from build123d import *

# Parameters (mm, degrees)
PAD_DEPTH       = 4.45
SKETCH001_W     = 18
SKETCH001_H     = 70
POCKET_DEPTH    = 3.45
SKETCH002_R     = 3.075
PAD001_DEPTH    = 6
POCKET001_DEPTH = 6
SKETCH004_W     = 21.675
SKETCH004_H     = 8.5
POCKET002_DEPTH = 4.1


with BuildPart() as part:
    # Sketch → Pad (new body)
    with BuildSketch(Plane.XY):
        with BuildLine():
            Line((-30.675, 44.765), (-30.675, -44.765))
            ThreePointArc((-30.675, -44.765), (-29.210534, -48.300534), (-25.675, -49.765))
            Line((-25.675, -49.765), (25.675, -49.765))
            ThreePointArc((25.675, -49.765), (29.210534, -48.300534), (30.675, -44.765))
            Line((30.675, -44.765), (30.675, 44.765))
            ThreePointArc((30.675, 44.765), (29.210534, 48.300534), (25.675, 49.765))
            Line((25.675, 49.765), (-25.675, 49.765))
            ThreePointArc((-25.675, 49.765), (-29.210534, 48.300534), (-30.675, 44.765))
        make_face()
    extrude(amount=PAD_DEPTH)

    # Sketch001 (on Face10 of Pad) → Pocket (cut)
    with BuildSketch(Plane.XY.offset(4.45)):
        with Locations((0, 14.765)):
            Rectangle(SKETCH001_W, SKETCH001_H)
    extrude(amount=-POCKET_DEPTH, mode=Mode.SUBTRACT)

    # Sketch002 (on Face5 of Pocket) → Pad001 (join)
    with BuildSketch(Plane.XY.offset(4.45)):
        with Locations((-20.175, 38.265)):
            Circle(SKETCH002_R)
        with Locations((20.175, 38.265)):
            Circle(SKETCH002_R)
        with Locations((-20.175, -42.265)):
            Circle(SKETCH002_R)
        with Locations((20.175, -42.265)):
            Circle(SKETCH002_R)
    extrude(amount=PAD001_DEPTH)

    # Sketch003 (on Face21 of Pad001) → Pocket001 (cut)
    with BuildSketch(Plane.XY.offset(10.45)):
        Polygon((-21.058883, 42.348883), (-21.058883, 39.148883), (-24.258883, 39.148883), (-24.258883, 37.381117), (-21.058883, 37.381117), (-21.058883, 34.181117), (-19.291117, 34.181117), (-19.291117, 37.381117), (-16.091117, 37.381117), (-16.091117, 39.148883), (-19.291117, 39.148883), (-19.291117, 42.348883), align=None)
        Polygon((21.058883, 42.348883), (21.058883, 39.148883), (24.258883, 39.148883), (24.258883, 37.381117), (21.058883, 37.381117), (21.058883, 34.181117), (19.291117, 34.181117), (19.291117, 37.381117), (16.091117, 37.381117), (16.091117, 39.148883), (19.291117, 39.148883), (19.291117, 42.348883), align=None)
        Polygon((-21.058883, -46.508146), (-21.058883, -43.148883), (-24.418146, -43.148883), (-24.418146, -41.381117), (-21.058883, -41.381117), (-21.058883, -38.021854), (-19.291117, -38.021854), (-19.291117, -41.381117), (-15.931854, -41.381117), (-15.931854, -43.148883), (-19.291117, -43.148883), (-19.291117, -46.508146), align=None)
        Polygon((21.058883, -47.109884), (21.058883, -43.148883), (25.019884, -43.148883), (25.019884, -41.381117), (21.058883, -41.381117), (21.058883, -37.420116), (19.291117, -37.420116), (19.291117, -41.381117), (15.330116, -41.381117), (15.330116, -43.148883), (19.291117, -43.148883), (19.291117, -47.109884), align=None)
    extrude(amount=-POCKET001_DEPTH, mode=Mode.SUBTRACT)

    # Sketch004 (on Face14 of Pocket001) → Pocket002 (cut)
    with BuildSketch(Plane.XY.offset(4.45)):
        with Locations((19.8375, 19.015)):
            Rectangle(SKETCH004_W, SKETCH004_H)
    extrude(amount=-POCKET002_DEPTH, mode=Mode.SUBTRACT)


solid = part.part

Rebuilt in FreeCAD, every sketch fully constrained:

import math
import FreeCAD as App
import Part
import Sketcher
Q = App.Units.Quantity

doc = App.newDocument("Part")
body = doc.addObject("PartDesign::Body", "Body")

# Sketch on XY plane
sketch1 = body.newObject("Sketcher::SketchObject", "Sketch")
sketch1.AttachmentSupport = (doc.getObject("XY_Plane"), [""])
sketch1.MapMode = "FlatFace"
sketch1.addGeometry([
    Part.LineSegment(App.Vector(-30.7, 44.8, 0), App.Vector(-30.7, -44.8, 0)),  # 0
    Part.ArcOfCircle(Part.Circle(App.Vector(-25.7, -44.8, 0), App.Vector(0, 0, 1), 5), math.radians(180), math.radians(270)),  # 1
    Part.LineSegment(App.Vector(-25.7, -49.8, 0), App.Vector(25.7, -49.8, 0)),  # 2
    Part.ArcOfCircle(Part.Circle(App.Vector(25.7, -44.8, 0), App.Vector(0, 0, 1), 5), math.radians(-90), math.radians(0)),  # 3
    Part.LineSegment(App.Vector(30.7, -44.8, 0), App.Vector(30.7, 44.8, 0)),  # 4
    Part.ArcOfCircle(Part.Circle(App.Vector(25.7, 44.8, 0), App.Vector(0, 0, 1), 5), math.radians(0), math.radians(90)),  # 5
    Part.LineSegment(App.Vector(25.7, 49.8, 0), App.Vector(-25.7, 49.8, 0)),  # 6
    Part.ArcOfCircle(Part.Circle(App.Vector(-25.7, 44.8, 0), App.Vector(0, 0, 1), 5), math.radians(90), math.radians(180)),  # 7
], False)
sketch1.addConstraint([
    Sketcher.Constraint("Tangent", 0, 2, 1, 1),
    Sketcher.Constraint("Tangent", 1, 2, 2, 1),
    Sketcher.Constraint("Tangent", 2, 2, 3, 1),
    Sketcher.Constraint("Tangent", 3, 2, 4, 1),
    Sketcher.Constraint("Tangent", 4, 2, 5, 1),
    Sketcher.Constraint("Tangent", 5, 2, 6, 1),
    Sketcher.Constraint("Tangent", 6, 2, 7, 1),
    Sketcher.Constraint("Tangent", 7, 2, 0, 1),
    Sketcher.Constraint("Vertical", 0),
    Sketcher.Constraint("Horizontal", 2),
    Sketcher.Constraint("Vertical", 4),
    Sketcher.Constraint("Horizontal", 6),
    Sketcher.Constraint("Equal", 1, 3),
    Sketcher.Constraint("Equal", 3, 5),
    Sketcher.Constraint("Equal", 5, 7),
    Sketcher.Constraint("Symmetric", 1, 3, 5, 3, -1, 1),
    Sketcher.Constraint("Radius", 1, Q("5 mm")),
    Sketcher.Constraint("DistanceX", 2, 1, 2, 2, Q("51.35 mm")),
    Sketcher.Constraint("DistanceY", 0, 2, 0, 1, Q("89.53 mm")),
])
pad1 = body.newObject("PartDesign::Pad", "Pad")
pad1.Profile = sketch1
pad1.Length = 4.45

# Sketch on XY plane
sketch2 = body.newObject("Sketcher::SketchObject", "Sketch001")
sketch2.AttachmentSupport = (doc.getObject("XY_Plane"), [""])
sketch2.MapMode = "FlatFace"
sketch2.AttachmentOffset = App.Placement(App.Vector(0, 0, 4.45), App.Rotation())
sketch2.addGeometry([
    Part.LineSegment(App.Vector(-9, 50, 0), App.Vector(-9, -20, 0)),
    Part.LineSegment(App.Vector(-9, -20, 0), App.Vector(9, -20, 0)),
    Part.LineSegment(App.Vector(9, -20, 0), App.Vector(9, 50, 0)),
    Part.LineSegment(App.Vector(9, 50, 0), App.Vector(-9, 50, 0)),
], False)
sketch2.addConstraint([
    Sketcher.Constraint("Coincident", 0, 2, 1, 1),
    Sketcher.Constraint("Coincident", 1, 2, 2, 1),
    Sketcher.Constraint("Coincident", 2, 2, 3, 1),
    Sketcher.Constraint("Coincident", 3, 2, 0, 1),
    Sketcher.Constraint("Vertical", 0),
    Sketcher.Constraint("Horizontal", 1),
    Sketcher.Constraint("Vertical", 2),
    Sketcher.Constraint("Horizontal", 3),
    Sketcher.Constraint("DistanceX", 1, 1, 1, 2, Q("18 mm")),
    Sketcher.Constraint("DistanceY", 0, 2, 0, 1, Q("70 mm")),
    Sketcher.Constraint("DistanceX", 0, 2, -1, 1, Q("9 mm")),
    Sketcher.Constraint("DistanceY", 0, 2, -1, 1, Q("20.235 mm")),
])
pocket1 = body.newObject("PartDesign::Pocket", "Pocket")
pocket1.Profile = sketch2
pocket1.Length = 3.45

# Sketch on XY plane
sketch3 = body.newObject("Sketcher::SketchObject", "Sketch002")
sketch3.AttachmentSupport = (doc.getObject("XY_Plane"), [""])
sketch3.MapMode = "FlatFace"
sketch3.AttachmentOffset = App.Placement(App.Vector(0, 0, 4.45), App.Rotation())
sketch3.addGeometry([
    Part.Circle(App.Vector(-20.2, 38.3, 0), App.Vector(0, 0, 1), 3.1),
    Part.Circle(App.Vector(20.2, 38.3, 0), App.Vector(0, 0, 1), 3.1),
    Part.Circle(App.Vector(-20.2, -42.3, 0), App.Vector(0, 0, 1), 3.1),
    Part.Circle(App.Vector(20.2, -42.3, 0), App.Vector(0, 0, 1), 3.1),
], False)
sketch3.addConstraint([
    Sketcher.Constraint("Equal", 0, 1),
    Sketcher.Constraint("Equal", 1, 2),
    Sketcher.Constraint("Equal", 2, 3),
    Sketcher.Constraint("Symmetric", 0, 3, 1, 3, -2),
    Sketcher.Constraint("Symmetric", 2, 3, 3, 3, -2),
    Sketcher.Constraint("Vertical", 0, 3, 2, 3),
    Sketcher.Constraint("Diameter", 0, Q("6.15 mm")),
    Sketcher.Constraint("DistanceX", 0, 3, 1, 3, Q("40.35 mm")),
    Sketcher.Constraint("DistanceY", 2, 3, 0, 3, Q("80.53 mm")),
    Sketcher.Constraint("DistanceY", -1, 1, 0, 3, Q("38.265 mm")),
])
pad2 = body.newObject("PartDesign::Pad", "Pad001")
pad2.Profile = sketch3
pad2.Length = 6

# Sketch on XY plane
sketch4 = body.newObject("Sketcher::SketchObject", "Sketch003")
sketch4.AttachmentSupport = (doc.getObject("XY_Plane"), [""])
sketch4.MapMode = "FlatFace"
sketch4.AttachmentOffset = App.Placement(App.Vector(0, 0, 10.45), App.Rotation())
sketch4.addGeometry([
    Part.LineSegment(App.Vector(-21.1, 42.3, 0), App.Vector(-21.1, 39.1, 0)),  # 0
    Part.LineSegment(App.Vector(-21.1, 39.1, 0), App.Vector(-24.3, 39.1, 0)),  # 1
    Part.LineSegment(App.Vector(-24.3, 39.1, 0), App.Vector(-24.3, 37.4, 0)),  # 2
    Part.LineSegment(App.Vector(-24.3, 37.4, 0), App.Vector(-21.1, 37.4, 0)),  # 3
    Part.LineSegment(App.Vector(-21.1, 37.4, 0), App.Vector(-21.1, 34.2, 0)),  # 4
    Part.LineSegment(App.Vector(-21.1, 34.2, 0), App.Vector(-19.3, 34.2, 0)),  # 5
    Part.LineSegment(App.Vector(-19.3, 34.2, 0), App.Vector(-19.3, 37.4, 0)),  # 6
    Part.LineSegment(App.Vector(-19.3, 37.4, 0), App.Vector(-16.1, 37.4, 0)),  # 7
    Part.LineSegment(App.Vector(-16.1, 37.4, 0), App.Vector(-16.1, 39.1, 0)),  # 8
    Part.LineSegment(App.Vector(-16.1, 39.1, 0), App.Vector(-19.3, 39.1, 0)),  # 9
    Part.LineSegment(App.Vector(-19.3, 39.1, 0), App.Vector(-19.3, 42.3, 0)),  # 10
    Part.LineSegment(App.Vector(-19.3, 42.3, 0), App.Vector(-21.1, 42.3, 0)),  # 11
    Part.LineSegment(App.Vector(21.1, 39.1, 0), App.Vector(21.1, 42.3, 0)),  # 12
    Part.LineSegment(App.Vector(21.1, 42.3, 0), App.Vector(19.3, 42.3, 0)),  # 13
    Part.LineSegment(App.Vector(19.3, 42.3, 0), App.Vector(19.3, 39.1, 0)),  # 14
    Part.LineSegment(App.Vector(19.3, 39.1, 0), App.Vector(16.1, 39.1, 0)),  # 15
    Part.LineSegment(App.Vector(16.1, 39.1, 0), App.Vector(16.1, 37.4, 0)),  # 16
    Part.LineSegment(App.Vector(16.1, 37.4, 0), App.Vector(19.3, 37.4, 0)),  # 17
    Part.LineSegment(App.Vector(19.3, 37.4, 0), App.Vector(19.3, 34.2, 0)),  # 18
    Part.LineSegment(App.Vector(19.3, 34.2, 0), App.Vector(21.1, 34.2, 0)),  # 19
    Part.LineSegment(App.Vector(21.1, 34.2, 0), App.Vector(21.1, 37.4, 0)),  # 20
    Part.LineSegment(App.Vector(21.1, 37.4, 0), App.Vector(24.3, 37.4, 0)),  # 21
    Part.LineSegment(App.Vector(24.3, 37.4, 0), App.Vector(24.3, 39.1, 0)),  # 22
    Part.LineSegment(App.Vector(24.3, 39.1, 0), App.Vector(21.1, 39.1, 0)),  # 23
    Part.LineSegment(App.Vector(-21.1, -43.1, 0), App.Vector(-21.1, -46.5, 0)),  # 24
    Part.LineSegment(App.Vector(-21.1, -46.5, 0), App.Vector(-19.3, -46.5, 0)),  # 25
    Part.LineSegment(App.Vector(-19.3, -46.5, 0), App.Vector(-19.3, -43.1, 0)),  # 26
    Part.LineSegment(App.Vector(-19.3, -43.1, 0), App.Vector(-15.9, -43.1, 0)),  # 27
    Part.LineSegment(App.Vector(-15.9, -43.1, 0), App.Vector(-15.9, -41.4, 0)),  # 28
    Part.LineSegment(App.Vector(-15.9, -41.4, 0), App.Vector(-19.3, -41.4, 0)),  # 29
    Part.LineSegment(App.Vector(-19.3, -41.4, 0), App.Vector(-19.3, -38, 0)),  # 30
    Part.LineSegment(App.Vector(-19.3, -38, 0), App.Vector(-21.1, -38, 0)),  # 31
    Part.LineSegment(App.Vector(-21.1, -38, 0), App.Vector(-21.1, -41.4, 0)),  # 32
    Part.LineSegment(App.Vector(-21.1, -41.4, 0), App.Vector(-24.4, -41.4, 0)),  # 33
    Part.LineSegment(App.Vector(-24.4, -41.4, 0), App.Vector(-24.4, -43.1, 0)),  # 34
    Part.LineSegment(App.Vector(-24.4, -43.1, 0), App.Vector(-21.1, -43.1, 0)),  # 35
    Part.LineSegment(App.Vector(21.1, -47.1, 0), App.Vector(21.1, -43.1, 0)),  # 36
    Part.LineSegment(App.Vector(21.1, -43.1, 0), App.Vector(25, -43.1, 0)),  # 37
    Part.LineSegment(App.Vector(25, -43.1, 0), App.Vector(25, -41.4, 0)),  # 38
    Part.LineSegment(App.Vector(25, -41.4, 0), App.Vector(21.1, -41.4, 0)),  # 39
    Part.LineSegment(App.Vector(21.1, -41.4, 0), App.Vector(21.1, -37.4, 0)),  # 40
    Part.LineSegment(App.Vector(21.1, -37.4, 0), App.Vector(19.3, -37.4, 0)),  # 41
    Part.LineSegment(App.Vector(19.3, -37.4, 0), App.Vector(19.3, -41.4, 0)),  # 42
    Part.LineSegment(App.Vector(19.3, -41.4, 0), App.Vector(15.3, -41.4, 0)),  # 43
    Part.LineSegment(App.Vector(15.3, -41.4, 0), App.Vector(15.3, -43.1, 0)),  # 44
    Part.LineSegment(App.Vector(15.3, -43.1, 0), App.Vector(19.3, -43.1, 0)),  # 45
    Part.LineSegment(App.Vector(19.3, -43.1, 0), App.Vector(19.3, -47.1, 0)),  # 46
    Part.LineSegment(App.Vector(19.3, -47.1, 0), App.Vector(21.1, -47.1, 0)),  # 47
], False)
sketch4.addConstraint([
    Sketcher.Constraint("Coincident", 0, 2, 1, 1),
    Sketcher.Constraint("Coincident", 1, 2, 2, 1),
    Sketcher.Constraint("Coincident", 2, 2, 3, 1),
    Sketcher.Constraint("Coincident", 3, 2, 4, 1),
    Sketcher.Constraint("Coincident", 4, 2, 5, 1),
    Sketcher.Constraint("Coincident", 5, 2, 6, 1),
    Sketcher.Constraint("Coincident", 6, 2, 7, 1),
    Sketcher.Constraint("Coincident", 7, 2, 8, 1),
    Sketcher.Constraint("Coincident", 8, 2, 9, 1),
    Sketcher.Constraint("Coincident", 9, 2, 10, 1),
    Sketcher.Constraint("Coincident", 10, 2, 11, 1),
    Sketcher.Constraint("Coincident", 11, 2, 0, 1),
    Sketcher.Constraint("Coincident", 12, 2, 13, 1),
    Sketcher.Constraint("Coincident", 13, 2, 14, 1),
    Sketcher.Constraint("Coincident", 14, 2, 15, 1),
    Sketcher.Constraint("Coincident", 15, 2, 16, 1),
    Sketcher.Constraint("Coincident", 16, 2, 17, 1),
    Sketcher.Constraint("Coincident", 17, 2, 18, 1),
    Sketcher.Constraint("Coincident", 18, 2, 19, 1),
    Sketcher.Constraint("Coincident", 19, 2, 20, 1),
    Sketcher.Constraint("Coincident", 20, 2, 21, 1),
    Sketcher.Constraint("Coincident", 21, 2, 22, 1),
    Sketcher.Constraint("Coincident", 22, 2, 23, 1),
    Sketcher.Constraint("Coincident", 23, 2, 12, 1),
    Sketcher.Constraint("Coincident", 24, 2, 25, 1),
    Sketcher.Constraint("Coincident", 25, 2, 26, 1),
    Sketcher.Constraint("Coincident", 26, 2, 27, 1),
    Sketcher.Constraint("Coincident", 27, 2, 28, 1),
    Sketcher.Constraint("Coincident", 28, 2, 29, 1),
    Sketcher.Constraint("Coincident", 29, 2, 30, 1),
    Sketcher.Constraint("Coincident", 30, 2, 31, 1),
    Sketcher.Constraint("Coincident", 31, 2, 32, 1),
    Sketcher.Constraint("Coincident", 32, 2, 33, 1),
    Sketcher.Constraint("Coincident", 33, 2, 34, 1),
    Sketcher.Constraint("Coincident", 34, 2, 35, 1),
    Sketcher.Constraint("Coincident", 35, 2, 24, 1),
    Sketcher.Constraint("Coincident", 36, 2, 37, 1),
    Sketcher.Constraint("Coincident", 37, 2, 38, 1),
    Sketcher.Constraint("Coincident", 38, 2, 39, 1),
    Sketcher.Constraint("Coincident", 39, 2, 40, 1),
    Sketcher.Constraint("Coincident", 40, 2, 41, 1),
    Sketcher.Constraint("Coincident", 41, 2, 42, 1),
    Sketcher.Constraint("Coincident", 42, 2, 43, 1),
    Sketcher.Constraint("Coincident", 43, 2, 44, 1),
    Sketcher.Constraint("Coincident", 44, 2, 45, 1),
    Sketcher.Constraint("Coincident", 45, 2, 46, 1),
    Sketcher.Constraint("Coincident", 46, 2, 47, 1),
    Sketcher.Constraint("Coincident", 47, 2, 36, 1),
    Sketcher.Constraint("Vertical", 0),
    Sketcher.Constraint("Horizontal", 1),
    Sketcher.Constraint("Vertical", 2),
    Sketcher.Constraint("Horizontal", 3),
    Sketcher.Constraint("Vertical", 4),
    Sketcher.Constraint("Horizontal", 5),
    Sketcher.Constraint("Vertical", 6),
    Sketcher.Constraint("Horizontal", 7),
    Sketcher.Constraint("Vertical", 8),
    Sketcher.Constraint("Horizontal", 9),
    Sketcher.Constraint("Vertical", 10),
    Sketcher.Constraint("Horizontal", 11),
    Sketcher.Constraint("Vertical", 12),
    Sketcher.Constraint("Horizontal", 13),
    Sketcher.Constraint("Vertical", 14),
    Sketcher.Constraint("Horizontal", 15),
    Sketcher.Constraint("Vertical", 16),
    Sketcher.Constraint("Horizontal", 17),
    Sketcher.Constraint("Vertical", 18),
    Sketcher.Constraint("Horizontal", 19),
    Sketcher.Constraint("Vertical", 20),
    Sketcher.Constraint("Horizontal", 21),
    Sketcher.Constraint("Vertical", 22),
    Sketcher.Constraint("Horizontal", 23),
    Sketcher.Constraint("Vertical", 24),
    Sketcher.Constraint("Horizontal", 25),
    Sketcher.Constraint("Vertical", 26),
    Sketcher.Constraint("Horizontal", 27),
    Sketcher.Constraint("Vertical", 28),
    Sketcher.Constraint("Horizontal", 29),
    Sketcher.Constraint("Vertical", 30),
    Sketcher.Constraint("Horizontal", 31),
    Sketcher.Constraint("Vertical", 32),
    Sketcher.Constraint("Horizontal", 33),
    Sketcher.Constraint("Vertical", 34),
    Sketcher.Constraint("Horizontal", 35),
    Sketcher.Constraint("Vertical", 36),
    Sketcher.Constraint("Horizontal", 37),
    Sketcher.Constraint("Vertical", 38),
    Sketcher.Constraint("Horizontal", 39),
    Sketcher.Constraint("Vertical", 40),
    Sketcher.Constraint("Horizontal", 41),
    Sketcher.Constraint("Vertical", 42),
    Sketcher.Constraint("Horizontal", 43),
    Sketcher.Constraint("Vertical", 44),
    Sketcher.Constraint("Horizontal", 45),
    Sketcher.Constraint("Vertical", 46),
    Sketcher.Constraint("Horizontal", 47),
    Sketcher.Constraint("Symmetric", 11, 2, 12, 2, -2),
    Sketcher.Constraint("Symmetric", 9, 2, 14, 2, -2),
    Sketcher.Constraint("Symmetric", 7, 2, 16, 2, -2),
    Sketcher.Constraint("Symmetric", 5, 2, 18, 2, -2),
    Sketcher.Constraint("Symmetric", 3, 2, 20, 2, -2),
    Sketcher.Constraint("Symmetric", 1, 2, 22, 2, -2),
    Sketcher.Constraint("Symmetric", 35, 2, 36, 2, -2),
    Sketcher.Constraint("Symmetric", 32, 2, 39, 2, -2),
    Sketcher.Constraint("Symmetric", 29, 2, 42, 2, -2),
    Sketcher.Constraint("Symmetric", 26, 2, 45, 2, -2),
    Sketcher.Constraint("Horizontal", 3, 2, 6, 2),
    Sketcher.Constraint("Horizontal", 1, 2, 8, 2),
    Sketcher.Constraint("Horizontal", 29, 2, 32, 2),
    Sketcher.Constraint("Horizontal", 27, 2, 34, 2),
    Sketcher.Constraint("Vertical", 0, 2, 3, 2),
    Sketcher.Constraint("Vertical", 6, 2, 9, 2),
    Sketcher.Constraint("Vertical", 11, 2, 24, 2),
    Sketcher.Constraint("Vertical", 10, 2, 25, 2),
    Sketcher.Constraint("Vertical", 26, 2, 29, 2),
    Sketcher.Constraint("Vertical", 24, 2, 31, 2),
    Sketcher.Constraint("Equal", 3, 7),
    Sketcher.Constraint("Equal", 29, 33),
    Sketcher.Constraint("Equal", 39, 43),
    Sketcher.Constraint("Equal", 23, 0),
    Sketcher.Constraint("Equal", 47, 2),
    Sketcher.Constraint("Equal", 0, 4),
    Sketcher.Constraint("Equal", 35, 24),
    Sketcher.Constraint("Equal", 22, 28),
    Sketcher.Constraint("Equal", 26, 30),
    Sketcher.Constraint("Equal", 45, 36),
    Sketcher.Constraint("Equal", 36, 40),
    Sketcher.Constraint("DistanceX", 1, 2, 1, 1, Q("3.2 mm")),
    Sketcher.Constraint("DistanceX", 37, 1, 37, 2, Q("3.961001 mm")),
    Sketcher.Constraint("DistanceX", 8, 2, 12, 2, Q("37.15 mm")),
    Sketcher.Constraint("DistanceY", 26, 2, 5, 2, Q("77.33 mm")),
    Sketcher.Constraint("DistanceX", 5, 1, 5, 2, Q("1.767766 mm")),
    Sketcher.Constraint("DistanceX", 27, 1, 27, 2, Q("3.359263 mm")),
    Sketcher.Constraint("DistanceY", -1, 1, 0, 2, Q("39.148883 mm")),
])
pocket2 = body.newObject("PartDesign::Pocket", "Pocket001")
pocket2.Profile = sketch4
pocket2.Length = 6

# Sketch on XY plane
sketch5 = body.newObject("Sketcher::SketchObject", "Sketch004")
sketch5.AttachmentSupport = (doc.getObject("XY_Plane"), [""])
sketch5.MapMode = "FlatFace"
sketch5.AttachmentOffset = App.Placement(App.Vector(0, 0, 4.45), App.Rotation())
sketch5.addGeometry([
    Part.LineSegment(App.Vector(9, 23, 0), App.Vector(9, 15, 0)),
    Part.LineSegment(App.Vector(9, 15, 0), App.Vector(31, 15, 0)),
    Part.LineSegment(App.Vector(31, 15, 0), App.Vector(31, 23, 0)),
    Part.LineSegment(App.Vector(31, 23, 0), App.Vector(9, 23, 0)),
], False)
sketch5.addConstraint([
    Sketcher.Constraint("Coincident", 0, 2, 1, 1),
    Sketcher.Constraint("Coincident", 1, 2, 2, 1),
    Sketcher.Constraint("Coincident", 2, 2, 3, 1),
    Sketcher.Constraint("Coincident", 3, 2, 0, 1),
    Sketcher.Constraint("Vertical", 0),
    Sketcher.Constraint("Horizontal", 1),
    Sketcher.Constraint("Vertical", 2),
    Sketcher.Constraint("Horizontal", 3),
    Sketcher.Constraint("DistanceY", 0, 2, 0, 1, Q("8.5 mm")),
    Sketcher.Constraint("DistanceX", -1, 1, 0, 2, Q("9 mm")),
    Sketcher.Constraint("DistanceX", 1, 1, 1, 2, Q("21.675 mm")),
    Sketcher.Constraint("DistanceY", -1, 1, 0, 2, Q("14.765 mm")),
])
pocket3 = body.newObject("PartDesign::Pocket", "Pocket002")
pocket3.Profile = sketch5
pocket3.Length = 4.1

doc.recompute()
